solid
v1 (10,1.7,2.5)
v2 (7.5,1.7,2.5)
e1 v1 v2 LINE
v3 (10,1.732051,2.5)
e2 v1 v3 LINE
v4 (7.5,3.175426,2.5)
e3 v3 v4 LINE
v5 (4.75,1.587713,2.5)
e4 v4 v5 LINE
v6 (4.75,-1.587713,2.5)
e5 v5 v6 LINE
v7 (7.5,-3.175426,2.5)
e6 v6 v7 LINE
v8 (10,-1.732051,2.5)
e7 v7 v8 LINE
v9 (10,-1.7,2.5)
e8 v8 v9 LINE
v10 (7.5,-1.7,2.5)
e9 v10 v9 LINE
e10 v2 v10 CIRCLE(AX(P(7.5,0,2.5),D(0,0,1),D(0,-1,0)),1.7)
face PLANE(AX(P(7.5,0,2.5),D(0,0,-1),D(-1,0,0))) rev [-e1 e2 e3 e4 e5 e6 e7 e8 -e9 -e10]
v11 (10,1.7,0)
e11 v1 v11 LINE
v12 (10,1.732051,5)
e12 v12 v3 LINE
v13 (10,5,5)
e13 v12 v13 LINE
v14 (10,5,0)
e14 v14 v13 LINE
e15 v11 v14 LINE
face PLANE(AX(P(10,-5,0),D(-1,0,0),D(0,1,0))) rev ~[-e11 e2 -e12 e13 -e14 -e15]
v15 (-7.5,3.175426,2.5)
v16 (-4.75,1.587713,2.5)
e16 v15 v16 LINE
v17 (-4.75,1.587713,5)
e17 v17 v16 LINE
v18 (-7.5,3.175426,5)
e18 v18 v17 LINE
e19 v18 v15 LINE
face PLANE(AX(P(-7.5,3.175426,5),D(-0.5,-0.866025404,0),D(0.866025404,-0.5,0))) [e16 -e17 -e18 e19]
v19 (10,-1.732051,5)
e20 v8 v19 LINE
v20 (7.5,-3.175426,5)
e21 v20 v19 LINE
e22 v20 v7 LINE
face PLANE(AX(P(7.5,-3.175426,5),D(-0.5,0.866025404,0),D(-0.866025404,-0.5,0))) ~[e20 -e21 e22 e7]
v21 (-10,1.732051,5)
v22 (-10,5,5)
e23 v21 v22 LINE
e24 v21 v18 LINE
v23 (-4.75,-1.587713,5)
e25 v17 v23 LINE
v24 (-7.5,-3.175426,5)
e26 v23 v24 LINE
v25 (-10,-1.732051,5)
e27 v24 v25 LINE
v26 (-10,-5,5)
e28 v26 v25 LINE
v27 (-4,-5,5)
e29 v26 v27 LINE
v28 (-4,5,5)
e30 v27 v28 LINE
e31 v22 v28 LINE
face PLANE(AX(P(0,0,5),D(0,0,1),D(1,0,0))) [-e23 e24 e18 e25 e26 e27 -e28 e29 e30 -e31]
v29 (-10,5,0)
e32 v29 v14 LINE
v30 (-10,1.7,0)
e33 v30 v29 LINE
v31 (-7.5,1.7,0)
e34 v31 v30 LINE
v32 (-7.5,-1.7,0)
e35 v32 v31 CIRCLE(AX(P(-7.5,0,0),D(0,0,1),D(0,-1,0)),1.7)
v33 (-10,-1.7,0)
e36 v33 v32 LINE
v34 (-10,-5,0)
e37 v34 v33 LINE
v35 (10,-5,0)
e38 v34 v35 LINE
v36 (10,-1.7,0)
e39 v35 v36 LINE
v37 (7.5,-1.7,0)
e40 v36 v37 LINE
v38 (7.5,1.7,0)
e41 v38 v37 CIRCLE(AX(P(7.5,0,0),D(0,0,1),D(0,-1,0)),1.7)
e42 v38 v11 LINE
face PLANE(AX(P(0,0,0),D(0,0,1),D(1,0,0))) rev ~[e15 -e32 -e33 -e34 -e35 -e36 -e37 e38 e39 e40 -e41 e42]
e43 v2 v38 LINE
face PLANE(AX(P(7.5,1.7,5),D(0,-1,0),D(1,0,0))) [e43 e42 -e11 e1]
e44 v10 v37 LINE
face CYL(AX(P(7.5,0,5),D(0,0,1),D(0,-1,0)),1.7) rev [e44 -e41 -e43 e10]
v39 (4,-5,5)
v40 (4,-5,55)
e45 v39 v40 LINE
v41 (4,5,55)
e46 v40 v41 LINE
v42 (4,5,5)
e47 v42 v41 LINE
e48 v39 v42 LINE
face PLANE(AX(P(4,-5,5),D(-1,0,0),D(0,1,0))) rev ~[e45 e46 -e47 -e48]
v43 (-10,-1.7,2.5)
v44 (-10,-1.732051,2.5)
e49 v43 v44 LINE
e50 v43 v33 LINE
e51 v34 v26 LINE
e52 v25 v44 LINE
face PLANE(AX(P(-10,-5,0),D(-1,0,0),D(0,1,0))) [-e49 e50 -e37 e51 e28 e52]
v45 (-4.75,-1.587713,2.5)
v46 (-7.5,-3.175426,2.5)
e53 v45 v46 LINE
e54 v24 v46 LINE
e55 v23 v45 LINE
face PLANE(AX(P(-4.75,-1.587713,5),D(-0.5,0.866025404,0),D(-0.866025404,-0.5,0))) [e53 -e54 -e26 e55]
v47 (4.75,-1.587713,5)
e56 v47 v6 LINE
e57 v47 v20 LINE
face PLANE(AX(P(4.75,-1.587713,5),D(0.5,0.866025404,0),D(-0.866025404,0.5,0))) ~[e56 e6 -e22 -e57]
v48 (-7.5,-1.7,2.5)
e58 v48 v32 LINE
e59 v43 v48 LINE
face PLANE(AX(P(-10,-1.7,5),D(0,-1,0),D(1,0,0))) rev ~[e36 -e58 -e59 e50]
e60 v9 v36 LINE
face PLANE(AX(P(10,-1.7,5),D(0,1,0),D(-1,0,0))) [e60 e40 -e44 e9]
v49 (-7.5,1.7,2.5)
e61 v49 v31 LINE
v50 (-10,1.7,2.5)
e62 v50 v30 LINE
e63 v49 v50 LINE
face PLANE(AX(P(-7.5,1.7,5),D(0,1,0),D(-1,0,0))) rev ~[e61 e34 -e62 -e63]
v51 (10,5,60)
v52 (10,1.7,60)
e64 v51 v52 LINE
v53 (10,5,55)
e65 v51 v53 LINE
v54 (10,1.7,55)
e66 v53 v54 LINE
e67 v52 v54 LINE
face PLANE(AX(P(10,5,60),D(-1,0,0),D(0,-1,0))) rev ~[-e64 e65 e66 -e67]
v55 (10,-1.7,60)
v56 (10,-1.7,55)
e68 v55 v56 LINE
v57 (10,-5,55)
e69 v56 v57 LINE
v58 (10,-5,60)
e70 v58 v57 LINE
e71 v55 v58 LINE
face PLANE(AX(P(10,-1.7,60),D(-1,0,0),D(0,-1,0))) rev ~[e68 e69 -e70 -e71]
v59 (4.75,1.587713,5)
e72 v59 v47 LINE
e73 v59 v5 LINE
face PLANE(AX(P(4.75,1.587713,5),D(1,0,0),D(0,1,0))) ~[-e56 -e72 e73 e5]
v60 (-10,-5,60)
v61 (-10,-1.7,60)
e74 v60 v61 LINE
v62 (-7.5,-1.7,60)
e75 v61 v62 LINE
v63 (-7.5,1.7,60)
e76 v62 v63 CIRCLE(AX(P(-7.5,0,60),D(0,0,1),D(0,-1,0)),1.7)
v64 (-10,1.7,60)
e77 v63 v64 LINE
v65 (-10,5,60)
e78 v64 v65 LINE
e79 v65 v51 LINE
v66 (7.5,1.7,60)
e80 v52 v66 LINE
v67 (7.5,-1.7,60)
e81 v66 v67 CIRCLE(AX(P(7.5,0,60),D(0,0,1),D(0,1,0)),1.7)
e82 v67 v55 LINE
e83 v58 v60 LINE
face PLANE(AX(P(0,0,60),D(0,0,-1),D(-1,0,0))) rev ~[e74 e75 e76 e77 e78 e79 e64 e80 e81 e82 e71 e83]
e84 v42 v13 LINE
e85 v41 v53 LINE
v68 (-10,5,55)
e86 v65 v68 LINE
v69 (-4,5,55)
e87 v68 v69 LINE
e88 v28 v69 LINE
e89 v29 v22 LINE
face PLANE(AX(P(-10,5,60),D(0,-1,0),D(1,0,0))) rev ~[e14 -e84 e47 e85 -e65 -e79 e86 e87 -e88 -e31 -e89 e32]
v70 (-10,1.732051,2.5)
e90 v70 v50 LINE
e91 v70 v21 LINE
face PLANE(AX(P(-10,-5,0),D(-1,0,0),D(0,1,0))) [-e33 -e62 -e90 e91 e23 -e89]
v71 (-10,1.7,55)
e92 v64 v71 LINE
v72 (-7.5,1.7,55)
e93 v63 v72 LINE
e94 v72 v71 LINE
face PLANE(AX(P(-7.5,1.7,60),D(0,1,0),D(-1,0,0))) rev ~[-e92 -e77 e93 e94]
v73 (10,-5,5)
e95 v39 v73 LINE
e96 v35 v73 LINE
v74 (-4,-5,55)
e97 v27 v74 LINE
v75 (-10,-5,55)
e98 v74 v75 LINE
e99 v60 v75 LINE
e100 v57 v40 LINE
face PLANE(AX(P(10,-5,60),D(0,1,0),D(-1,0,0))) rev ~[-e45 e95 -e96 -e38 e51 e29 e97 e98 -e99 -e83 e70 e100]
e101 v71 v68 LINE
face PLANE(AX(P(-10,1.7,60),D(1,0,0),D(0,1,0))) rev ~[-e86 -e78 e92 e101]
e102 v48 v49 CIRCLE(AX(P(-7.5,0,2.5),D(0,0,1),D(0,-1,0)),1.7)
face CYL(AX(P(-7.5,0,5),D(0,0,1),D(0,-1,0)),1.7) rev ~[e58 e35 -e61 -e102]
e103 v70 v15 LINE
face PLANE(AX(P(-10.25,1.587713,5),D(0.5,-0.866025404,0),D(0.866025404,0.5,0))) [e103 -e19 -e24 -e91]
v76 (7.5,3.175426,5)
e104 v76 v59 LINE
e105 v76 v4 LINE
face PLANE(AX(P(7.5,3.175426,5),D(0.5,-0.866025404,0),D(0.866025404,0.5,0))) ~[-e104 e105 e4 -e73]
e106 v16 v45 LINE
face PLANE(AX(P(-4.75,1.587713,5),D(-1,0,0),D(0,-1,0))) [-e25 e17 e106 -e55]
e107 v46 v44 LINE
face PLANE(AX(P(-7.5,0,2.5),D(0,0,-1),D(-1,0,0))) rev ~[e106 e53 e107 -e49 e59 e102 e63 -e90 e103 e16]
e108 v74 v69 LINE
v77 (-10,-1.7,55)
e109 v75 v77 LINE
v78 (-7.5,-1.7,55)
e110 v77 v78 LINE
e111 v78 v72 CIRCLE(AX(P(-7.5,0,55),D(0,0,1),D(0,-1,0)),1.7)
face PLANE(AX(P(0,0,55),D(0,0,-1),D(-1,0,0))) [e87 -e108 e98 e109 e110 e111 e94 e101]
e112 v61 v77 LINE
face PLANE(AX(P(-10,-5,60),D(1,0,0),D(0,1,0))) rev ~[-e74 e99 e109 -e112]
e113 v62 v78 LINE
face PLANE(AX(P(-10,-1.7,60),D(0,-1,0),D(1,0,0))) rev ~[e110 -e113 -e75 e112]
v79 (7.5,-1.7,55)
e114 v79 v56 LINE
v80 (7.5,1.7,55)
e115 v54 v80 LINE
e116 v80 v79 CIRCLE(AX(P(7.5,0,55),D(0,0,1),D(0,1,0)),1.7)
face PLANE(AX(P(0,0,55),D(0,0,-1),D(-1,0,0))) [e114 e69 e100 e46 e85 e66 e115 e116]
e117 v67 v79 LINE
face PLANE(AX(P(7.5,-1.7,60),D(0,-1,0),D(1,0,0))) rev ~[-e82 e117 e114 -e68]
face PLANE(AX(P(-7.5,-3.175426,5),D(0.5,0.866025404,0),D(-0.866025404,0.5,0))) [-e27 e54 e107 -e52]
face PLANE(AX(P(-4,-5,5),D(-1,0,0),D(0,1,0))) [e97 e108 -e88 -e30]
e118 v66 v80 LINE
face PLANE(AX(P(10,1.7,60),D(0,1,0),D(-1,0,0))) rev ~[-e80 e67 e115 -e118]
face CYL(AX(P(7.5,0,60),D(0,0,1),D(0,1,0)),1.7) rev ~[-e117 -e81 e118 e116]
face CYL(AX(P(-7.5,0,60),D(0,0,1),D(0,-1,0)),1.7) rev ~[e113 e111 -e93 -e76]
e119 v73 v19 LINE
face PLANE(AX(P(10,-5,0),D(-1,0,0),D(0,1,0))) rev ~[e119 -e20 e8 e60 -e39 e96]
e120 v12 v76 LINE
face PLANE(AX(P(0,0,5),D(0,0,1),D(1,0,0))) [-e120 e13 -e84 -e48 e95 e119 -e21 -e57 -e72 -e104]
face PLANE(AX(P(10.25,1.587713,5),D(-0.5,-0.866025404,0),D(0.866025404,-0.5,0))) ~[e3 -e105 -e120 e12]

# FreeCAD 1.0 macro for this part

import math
import FreeCAD as App
import Part
import Sketcher

V = App.Vector
Q = App.Units.Quantity


def add_polygon(sketch, points):
    """Adds a closed chain of lines whose ends are joined by coincident constraints."""
    first, n = sketch.GeometryCount, len(points)
    for a, b in zip(points, points[1:] + points[:1]):
        sketch.addGeometry(Part.LineSegment(App.Vector(*a, 0), App.Vector(*b, 0)), False)
    for i in range(n):
        sketch.addConstraint(Sketcher.Constraint("Coincident", first + i, 2, first + (i + 1) % n, 1))

doc = App.newDocument("Part")
body = doc.addObject("PartDesign::Body", "Body")

sketch1 = body.newObject("Sketcher::SketchObject", "Sketch")
sketch1.AttachmentSupport = (doc.getObject("XY_Plane"), [""])
sketch1.MapMode = "FlatFace"
add_polygon(sketch1, [(-10, 5), (-10, -5), (10, -5), (10, 5)])
sketch1.addConstraint(Sketcher.Constraint("Vertical", 0))
sketch1.addConstraint(Sketcher.Constraint("Horizontal", 1))
sketch1.addConstraint(Sketcher.Constraint("Vertical", 2))
sketch1.addConstraint(Sketcher.Constraint("Horizontal", 3))
sketch1.addConstraint(Sketcher.Constraint("Symmetric", 0, 2, 2, 2, -1, 1))
sketch1.addConstraint(Sketcher.Constraint("DistanceX", 1, 1, 1, 2, Q("20 mm")))
sketch1.addConstraint(Sketcher.Constraint("DistanceY", 0, 2, 0, 1, Q("10 mm")))
pad1 = body.newObject("PartDesign::Pad", "Pad")
pad1.Profile = sketch1
pad1.Length = 5

sketch2 = body.newObject("Sketcher::SketchObject", "Sketch001")
sketch2.AttachmentSupport = (doc.getObject("XY_Plane"), [""])
sketch2.MapMode = "FlatFace"
sketch2.AttachmentOffset = App.Placement(V(0, 0, 5), App.Rotation())
add_polygon(sketch2, [(-4, 5), (-4, -5), (4, -5), (4, 5)])
sketch2.addConstraint(Sketcher.Constraint("Vertical", 0))
sketch2.addConstraint(Sketcher.Constraint("Horizontal", 1))
sketch2.addConstraint(Sketcher.Constraint("Vertical", 2))
sketch2.addConstraint(Sketcher.Constraint("Horizontal", 3))
sketch2.addConstraint(Sketcher.Constraint("Symmetric", 0, 2, 2, 2, -1, 1))
sketch2.addConstraint(Sketcher.Constraint("DistanceX", 1, 1, 1, 2, Q("8 mm")))
sketch2.addConstraint(Sketcher.Constraint("DistanceY", 0, 2, 0, 1, Q("10 mm")))
pad2 = body.newObject("PartDesign::Pad", "Pad001")
pad2.Profile = sketch2
pad2.Length = 50

sketch3 = body.newObject("Sketcher::SketchObject", "Sketch002")
sketch3.AttachmentSupport = (doc.getObject("XY_Plane"), [""])
sketch3.MapMode = "FlatFace"
sketch3.AttachmentOffset = App.Placement(V(0, 0, 5), App.Rotation())
sketch3.addGeometry(Part.LineSegment(V(-7.5, 1.7, 0), V(-10, 1.7, 0)), False)
sketch3.addGeometry(Part.LineSegment(V(-10, 1.7, 0), V(-10, -1.7, 0)), False)
sketch3.addGeometry(Part.LineSegment(V(-10, -1.7, 0), V(-7.5, -1.7, 0)), False)
sketch3.addGeometry(Part.ArcOfCircle(Part.Circle(V(-7.5, 0, 0), V(0, 0, 1), 1.7), math.radians(-90), math.radians(90)), False)
sketch3.addGeometry(Part.LineSegment(V(10, 1.7, 0), V(7.5, 1.7, 0)), False)
sketch3.addGeometry(Part.ArcOfCircle(Part.Circle(V(7.5, 0, 0), V(0, 0, 1), 1.7), math.radians(90), math.radians(270)), False)
sketch3.addGeometry(Part.LineSegment(V(7.5, -1.7, 0), V(10, -1.7, 0)), False)
sketch3.addGeometry(Part.LineSegment(V(10, -1.7, 0), V(10, 1.7, 0)), False)
sketch3.addConstraint(Sketcher.Constraint("Coincident", 0, 2, 1, 1))
sketch3.addConstraint(Sketcher.Constraint("Coincident", 1, 2, 2, 1))
sketch3.addConstraint(Sketcher.Constraint("Tangent", 2, 2, 3, 1))
sketch3.addConstraint(Sketcher.Constraint("Tangent", 3, 2, 0, 1))
sketch3.addConstraint(Sketcher.Constraint("Tangent", 4, 2, 5, 1))
sketch3.addConstraint(Sketcher.Constraint("Tangent", 5, 2, 6, 1))
sketch3.addConstraint(Sketcher.Constraint("Coincident", 6, 2, 7, 1))
sketch3.addConstraint(Sketcher.Constraint("Coincident", 7, 2, 4, 1))
sketch3.addConstraint(Sketcher.Constraint("Horizontal", 0))
sketch3.addConstraint(Sketcher.Constraint("Vertical", 1))
sketch3.addConstraint(Sketcher.Constraint("Horizontal", 2))
sketch3.addConstraint(Sketcher.Constraint("Horizontal", 4))
sketch3.addConstraint(Sketcher.Constraint("Horizontal", 6))
sketch3.addConstraint(Sketcher.Constraint("Vertical", 7))
sketch3.addConstraint(Sketcher.Constraint("Equal", 3, 5))
sketch3.addConstraint(Sketcher.Constraint("Symmetric", 3, 3, 5, 3, -1, 1))
sketch3.addConstraint(Sketcher.Constraint("Symmetric", 1, 2, 6, 2, -2))
sketch3.addConstraint(Sketcher.Constraint("Radius", 3, Q("1.7 mm")))
sketch3.addConstraint(Sketcher.Constraint("DistanceX", 0, 2, 0, 1, Q("2.5 mm")))
sketch3.addConstraint(Sketcher.Constraint("DistanceX", 0, 2, -1, 1, Q("10 mm")))
pocket1 = body.newObject("PartDesign::Pocket", "Pocket")
pocket1.Profile = sketch3
pocket1.Length = 10

sketch4 = body.newObject("Sketcher::SketchObject", "Sketch003")
sketch4.AttachmentSupport = (doc.getObject("XY_Plane"), [""])
sketch4.MapMode = "FlatFace"
sketch4.AttachmentOffset = App.Placement(V(0, 0, 60), App.Rotation())
sketch4.addGeometry(Part.LineSegment(V(-10, 1.7, 0), V(-7.5, 1.7, 0)), False)
sketch4.addGeometry(Part.ArcOfCircle(Part.Circle(V(-7.5, 0, 0), V(0, 0, 1), 1.7), math.radians(-90), math.radians(90)), False)
sketch4.addGeometry(Part.LineSegment(V(-7.5, -1.7, 0), V(-10, -1.7, 0)), False)
sketch4.addGeometry(Part.LineSegment(V(-10, -1.7, 0), V(-10, -5, 0)), False)
sketch4.addGeometry(Part.LineSegment(V(-10, -5, 0), V(10, -5, 0)), False)
sketch4.addGeometry(Part.LineSegment(V(10, -5, 0), V(10, -1.7, 0)), False)
sketch4.addGeometry(Part.LineSegment(V(10, -1.7, 0), V(7.5, -1.7, 0)), False)
sketch4.addGeometry(Part.ArcOfCircle(Part.Circle(V(7.5, 0, 0), V(0, 0, 1), 1.7), math.radians(90), math.radians(270)), False)
sketch4.addGeometry(Part.LineSegment(V(7.5, 1.7, 0), V(10, 1.7, 0)), False)
sketch4.addGeometry(Part.LineSegment(V(10, 1.7, 0), V(10, 5, 0)), False)
sketch4.addGeometry(Part.LineSegment(V(10, 5, 0), V(-10, 5, 0)), False)
sketch4.addGeometry(Part.LineSegment(V(-10, 5, 0), V(-10, 1.7, 0)), False)
sketch4.addConstraint(Sketcher.Constraint("Tangent", 0, 2, 1, 2))
sketch4.addConstraint(Sketcher.Constraint("Tangent", 1, 1, 2, 1))
sketch4.addConstraint(Sketcher.Constraint("Coincident", 2, 2, 3, 1))
sketch4.addConstraint(Sketcher.Constraint("Coincident", 3, 2, 4, 1))
sketch4.addConstraint(Sketcher.Constraint("Coincident", 4, 2, 5, 1))
sketch4.addConstraint(Sketcher.Constraint("Coincident", 5, 2, 6, 1))
sketch4.addConstraint(Sketcher.Constraint("Tangent", 6, 2, 7, 2))
sketch4.addConstraint(Sketcher.Constraint("Tangent", 7, 1, 8, 1))
sketch4.addConstraint(Sketcher.Constraint("Coincident", 8, 2, 9, 1))
sketch4.addConstraint(Sketcher.Constraint("Coincident", 9, 2, 10, 1))
sketch4.addConstraint(Sketcher.Constraint("Coincident", 10, 2, 11, 1))
sketch4.addConstraint(Sketcher.Constraint("Coincident", 11, 2, 0, 1))
sketch4.addConstraint(Sketcher.Constraint("Horizontal", 0))
sketch4.addConstraint(Sketcher.Constraint("Horizontal", 2))
sketch4.addConstraint(Sketcher.Constraint("Vertical", 3))
sketch4.addConstraint(Sketcher.Constraint("Horizontal", 4))
sketch4.addConstraint(Sketcher.Constraint("Vertical", 5))
sketch4.addConstraint(Sketcher.Constraint("Horizontal", 6))
sketch4.addConstraint(Sketcher.Constraint("Horizontal", 8))
sketch4.addConstraint(Sketcher.Constraint("Vertical", 9))
sketch4.addConstraint(Sketcher.Constraint("Horizontal", 10))
sketch4.addConstraint(Sketcher.Constraint("Vertical", 11))
sketch4.addConstraint(Sketcher.Constraint("Equal", 1, 7))
sketch4.addConstraint(Sketcher.Constraint("Symmetric", 1, 3, 7, 3, -1, 1))
sketch4.addConstraint(Sketcher.Constraint("Symmetric", 3, 2, 9, 2, -1, 1))
sketch4.addConstraint(Sketcher.Constraint("Symmetric", 2, 2, 5, 2, -2))
sketch4.addConstraint(Sketcher.Constraint("Vertical", 3, 2, 10, 2))
sketch4.addConstraint(Sketcher.Constraint("Radius", 1, Q("1.7 mm")))
sketch4.addConstraint(Sketcher.Constraint("DistanceX", 4, 1, 4, 2, Q("20 mm")))
sketch4.addConstraint(Sketcher.Constraint("DistanceX", 0, 1, 0, 2, Q("2.5 mm")))
sketch4.addConstraint(Sketcher.Constraint("DistanceY", 3, 2, 3, 1, Q("3.3 mm")))
pad3 = body.newObject("PartDesign::Pad", "Pad002")
pad3.Profile = sketch4
pad3.Length = 5
pad3.Reversed = True

sketch5 = body.newObject("Sketcher::SketchObject", "Sketch004")
sketch5.AttachmentSupport = (doc.getObject("XY_Plane"), [""])
sketch5.MapMode = "FlatFace"
sketch5.AttachmentOffset = App.Placement(V(0, 0, 5), App.Rotation())
add_polygon(sketch5, [(-4.8, -1.6), (-4.8, 1.6), (-7.5, 3.2), (-10.2, 1.6), (-10.2, -1.6), (-7.5, -3.2)])
sketch5.addConstraint(Sketcher.Constraint("Vertical", 0))
sketch5.addConstraint(Sketcher.Constraint("Vertical", 3))
sketch5.addConstraint(Sketcher.Constraint("Symmetric", 1, 2, 4, 2, -1))
sketch5.addConstraint(Sketcher.Constraint("Parallel", 1, 4))
sketch5.addConstraint(Sketcher.Constraint("Parallel", 2, 5))
sketch5.addConstraint(Sketcher.Constraint("Horizontal", 0, 2, 2, 2))
sketch5.addConstraint(Sketcher.Constraint("Horizontal", 3, 2, 5, 2))
sketch5.addConstraint(Sketcher.Constraint("Angle", 1, Q("150 deg")))
sketch5.addConstraint(Sketcher.Constraint("DistanceX", 1, 2, -1, 1, Q("7.5 mm")))
sketch5.addConstraint(Sketcher.Constraint("DistanceX", 2, 2, 0, 2, Q("5.5 mm")))
sketch5.addConstraint(Sketcher.Constraint("DistanceY", 0, 1, 0, 2, Q("3.175426 mm")))
pocket2 = body.newObject("PartDesign::Pocket", "Pocket001")
pocket2.Profile = sketch5
pocket2.Length = 2.5
doc.recompute()

mirrored = body.newObject("PartDesign::Mirrored", "Mirrored")
mirrored.Originals = [pocket2]
mirrored.MirrorPlane = (doc.getObject("YZ_Plane"), [""])
body.Tip = mirrored

doc.recompute()
